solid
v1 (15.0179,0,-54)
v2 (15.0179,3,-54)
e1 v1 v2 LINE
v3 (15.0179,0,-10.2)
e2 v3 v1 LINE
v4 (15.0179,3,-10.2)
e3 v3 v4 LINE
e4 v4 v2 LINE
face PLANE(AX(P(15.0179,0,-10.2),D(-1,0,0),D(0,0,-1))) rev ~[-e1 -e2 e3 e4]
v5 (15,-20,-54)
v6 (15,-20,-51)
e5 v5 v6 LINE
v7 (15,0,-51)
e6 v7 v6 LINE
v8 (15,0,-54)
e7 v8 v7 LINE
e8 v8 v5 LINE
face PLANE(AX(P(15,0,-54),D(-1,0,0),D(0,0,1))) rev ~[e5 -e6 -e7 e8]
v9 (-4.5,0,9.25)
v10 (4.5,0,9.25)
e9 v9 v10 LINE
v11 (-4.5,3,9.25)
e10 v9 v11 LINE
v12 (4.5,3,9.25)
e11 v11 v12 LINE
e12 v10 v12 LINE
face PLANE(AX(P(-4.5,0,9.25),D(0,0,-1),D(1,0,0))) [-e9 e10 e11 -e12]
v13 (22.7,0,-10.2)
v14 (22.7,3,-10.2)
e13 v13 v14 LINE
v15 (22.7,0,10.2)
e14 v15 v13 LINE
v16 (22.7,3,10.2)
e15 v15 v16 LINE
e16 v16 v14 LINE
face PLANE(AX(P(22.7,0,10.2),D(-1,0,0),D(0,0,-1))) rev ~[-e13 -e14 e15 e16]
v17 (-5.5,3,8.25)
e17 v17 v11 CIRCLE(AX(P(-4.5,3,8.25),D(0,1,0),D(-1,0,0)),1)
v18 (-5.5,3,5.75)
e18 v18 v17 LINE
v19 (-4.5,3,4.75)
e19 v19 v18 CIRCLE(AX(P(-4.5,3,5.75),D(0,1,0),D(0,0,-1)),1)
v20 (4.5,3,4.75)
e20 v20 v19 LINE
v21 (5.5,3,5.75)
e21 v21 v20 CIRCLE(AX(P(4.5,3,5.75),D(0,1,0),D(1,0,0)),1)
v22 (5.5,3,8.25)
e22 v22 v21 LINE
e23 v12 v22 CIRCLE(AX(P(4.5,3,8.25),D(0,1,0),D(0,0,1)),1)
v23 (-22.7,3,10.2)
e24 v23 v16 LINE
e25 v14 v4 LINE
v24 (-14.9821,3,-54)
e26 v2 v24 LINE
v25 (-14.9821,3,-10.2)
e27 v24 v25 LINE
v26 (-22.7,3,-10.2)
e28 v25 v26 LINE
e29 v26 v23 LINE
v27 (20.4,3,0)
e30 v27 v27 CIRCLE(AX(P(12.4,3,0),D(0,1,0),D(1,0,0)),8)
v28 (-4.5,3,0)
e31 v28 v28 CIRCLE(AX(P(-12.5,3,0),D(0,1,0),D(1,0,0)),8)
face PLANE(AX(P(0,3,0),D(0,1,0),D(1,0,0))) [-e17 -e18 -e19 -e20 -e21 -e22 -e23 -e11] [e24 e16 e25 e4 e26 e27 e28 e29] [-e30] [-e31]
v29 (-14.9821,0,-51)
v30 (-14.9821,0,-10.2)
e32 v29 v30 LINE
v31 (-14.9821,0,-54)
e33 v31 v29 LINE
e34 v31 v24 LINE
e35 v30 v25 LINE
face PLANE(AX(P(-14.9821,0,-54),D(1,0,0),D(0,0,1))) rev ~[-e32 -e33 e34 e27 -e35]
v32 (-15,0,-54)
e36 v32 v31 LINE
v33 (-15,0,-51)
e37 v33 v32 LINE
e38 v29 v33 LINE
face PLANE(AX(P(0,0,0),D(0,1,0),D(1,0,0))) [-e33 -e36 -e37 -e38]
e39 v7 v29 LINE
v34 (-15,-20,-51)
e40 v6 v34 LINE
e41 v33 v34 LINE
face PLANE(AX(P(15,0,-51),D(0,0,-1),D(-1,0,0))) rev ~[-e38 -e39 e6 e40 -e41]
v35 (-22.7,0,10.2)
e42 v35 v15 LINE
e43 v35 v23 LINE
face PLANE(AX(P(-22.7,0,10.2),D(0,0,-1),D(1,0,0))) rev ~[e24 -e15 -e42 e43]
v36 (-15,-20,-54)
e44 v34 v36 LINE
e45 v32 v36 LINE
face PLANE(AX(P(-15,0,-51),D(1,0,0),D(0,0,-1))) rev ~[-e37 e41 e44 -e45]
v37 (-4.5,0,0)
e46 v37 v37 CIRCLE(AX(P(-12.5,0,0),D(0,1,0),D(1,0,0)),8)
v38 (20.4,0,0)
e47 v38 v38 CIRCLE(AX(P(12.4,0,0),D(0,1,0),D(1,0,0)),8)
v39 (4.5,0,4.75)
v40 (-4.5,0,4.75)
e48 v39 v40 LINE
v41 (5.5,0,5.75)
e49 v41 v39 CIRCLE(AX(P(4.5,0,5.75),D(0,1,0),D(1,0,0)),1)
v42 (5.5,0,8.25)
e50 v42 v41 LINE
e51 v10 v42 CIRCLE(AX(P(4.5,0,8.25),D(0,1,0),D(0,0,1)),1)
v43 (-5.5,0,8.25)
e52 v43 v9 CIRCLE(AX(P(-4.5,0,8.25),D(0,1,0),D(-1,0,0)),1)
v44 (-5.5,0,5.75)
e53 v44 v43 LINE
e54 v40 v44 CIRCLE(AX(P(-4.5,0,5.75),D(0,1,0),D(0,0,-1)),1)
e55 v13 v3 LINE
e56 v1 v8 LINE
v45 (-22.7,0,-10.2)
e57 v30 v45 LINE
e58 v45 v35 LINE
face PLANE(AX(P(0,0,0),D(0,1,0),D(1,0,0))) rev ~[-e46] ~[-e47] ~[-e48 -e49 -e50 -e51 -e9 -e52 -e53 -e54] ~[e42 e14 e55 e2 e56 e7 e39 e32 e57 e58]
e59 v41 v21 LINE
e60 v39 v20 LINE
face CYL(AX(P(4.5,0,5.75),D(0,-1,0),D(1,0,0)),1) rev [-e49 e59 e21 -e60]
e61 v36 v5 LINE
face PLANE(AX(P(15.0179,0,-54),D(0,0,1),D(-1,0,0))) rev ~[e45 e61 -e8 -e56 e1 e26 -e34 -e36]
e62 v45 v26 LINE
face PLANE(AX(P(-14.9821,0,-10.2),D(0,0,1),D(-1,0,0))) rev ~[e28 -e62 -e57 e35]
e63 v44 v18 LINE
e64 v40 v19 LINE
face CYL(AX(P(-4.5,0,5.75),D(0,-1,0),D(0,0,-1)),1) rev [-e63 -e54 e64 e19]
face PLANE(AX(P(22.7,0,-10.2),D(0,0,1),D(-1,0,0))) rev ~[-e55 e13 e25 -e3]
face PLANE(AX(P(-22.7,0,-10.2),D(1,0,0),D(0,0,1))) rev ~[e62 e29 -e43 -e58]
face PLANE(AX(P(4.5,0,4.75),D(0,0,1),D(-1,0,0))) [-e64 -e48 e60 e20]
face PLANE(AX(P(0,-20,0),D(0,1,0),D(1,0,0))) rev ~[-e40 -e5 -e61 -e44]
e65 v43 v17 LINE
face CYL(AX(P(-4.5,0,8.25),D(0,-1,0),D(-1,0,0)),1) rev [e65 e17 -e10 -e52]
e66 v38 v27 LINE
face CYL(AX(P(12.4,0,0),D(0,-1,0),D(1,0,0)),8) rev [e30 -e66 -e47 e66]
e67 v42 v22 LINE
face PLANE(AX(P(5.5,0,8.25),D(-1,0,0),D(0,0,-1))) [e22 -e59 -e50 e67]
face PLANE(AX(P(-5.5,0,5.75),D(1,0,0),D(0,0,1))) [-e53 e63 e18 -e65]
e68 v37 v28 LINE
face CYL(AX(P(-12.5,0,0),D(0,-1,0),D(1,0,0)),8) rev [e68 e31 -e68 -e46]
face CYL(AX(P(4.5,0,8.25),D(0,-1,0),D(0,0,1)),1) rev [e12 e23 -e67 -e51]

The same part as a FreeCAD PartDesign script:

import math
import FreeCAD as App
import Part
import Sketcher
from FreeCAD import Vector


def add_polygon(sketch, points):
    """Adds a closed chain of lines whose ends are joined by coincident constraints."""
    first, n = sketch.GeometryCount, len(points)
    for a, b in zip(points, points[1:] + points[:1]):
        sketch.addGeometry(Part.LineSegment(App.Vector(*a, 0), App.Vector(*b, 0)), False)
    for i in range(n):
        sketch.addConstraint(Sketcher.Constraint("Coincident", first + i, 2, first + (i + 1) % n, 1))

doc = App.newDocument("Part")
body = doc.addObject("PartDesign::Body", "Body")

# Sketch on XZ plane
sketch1 = body.newObject("Sketcher::SketchObject", "Sketch")
sketch1.AttachmentSupport = (doc.getObject("XZ_Plane"), [""])
sketch1.MapMode = "FlatFace"
add_polygon(sketch1, [(-14.9821, -10.2), (-22.7, -10.2), (-22.7, 10.2), (22.7, 10.2), (22.7, -10.2), (15.0179, -10.2), (15.0179, -54), (-14.9821, -54)])  # lines 0-7
sketch1.addGeometry(Part.Circle(Vector(-12.5, 0, 0), Vector(0, 0, 1), 8), False)  # 8
sketch1.addGeometry(Part.LineSegment(Vector(-4.5, 4.75, 0), Vector(4.5, 4.75, 0)), False)  # 9
sketch1.addGeometry(Part.ArcOfCircle(Part.Circle(Vector(4.5, 5.75, 0), Vector(0, 0, 1), 1), math.radians(-90), math.radians(0)), False)  # 10
sketch1.addGeometry(Part.LineSegment(Vector(5.5, 5.75, 0), Vector(5.5, 8.25, 0)), False)  # 11
sketch1.addGeometry(Part.ArcOfCircle(Part.Circle(Vector(4.5, 8.25, 0), Vector(0, 0, 1), 1), math.radians(0), math.radians(90)), False)  # 12
sketch1.addGeometry(Part.LineSegment(Vector(4.5, 9.25, 0), Vector(-4.5, 9.25, 0)), False)  # 13
sketch1.addGeometry(Part.ArcOfCircle(Part.Circle(Vector(-4.5, 8.25, 0), Vector(0, 0, 1), 1), math.radians(90), math.radians(180)), False)  # 14
sketch1.addGeometry(Part.LineSegment(Vector(-5.5, 8.25, 0), Vector(-5.5, 5.75, 0)), False)  # 15
sketch1.addGeometry(Part.ArcOfCircle(Part.Circle(Vector(-4.5, 5.75, 0), Vector(0, 0, 1), 1), math.radians(180), math.radians(270)), False)  # 16
sketch1.addGeometry(Part.Circle(Vector(12.4, 0, 0), Vector(0, 0, 1), 8), False)  # 17
sketch1.addConstraint([
    Sketcher.Constraint("Tangent", 9, 2, 10, 1),
    Sketcher.Constraint("Tangent", 10, 2, 11, 1),
    Sketcher.Constraint("Tangent", 11, 2, 12, 1),
    Sketcher.Constraint("Tangent", 12, 2, 13, 1),
    Sketcher.Constraint("Tangent", 13, 2, 14, 1),
    Sketcher.Constraint("Tangent", 14, 2, 15, 1),
    Sketcher.Constraint("Tangent", 15, 2, 16, 1),
    Sketcher.Constraint("Tangent", 16, 2, 9, 1),
    Sketcher.Constraint("Horizontal", 0),
    Sketcher.Constraint("Vertical", 1),
    Sketcher.Constraint("Horizontal", 2),
    Sketcher.Constraint("Vertical", 3),
    Sketcher.Constraint("Horizontal", 4),
    Sketcher.Constraint("Vertical", 5),
    Sketcher.Constraint("Horizontal", 6),
    Sketcher.Constraint("Vertical", 7),
    Sketcher.Constraint("Horizontal", 9),
    Sketcher.Constraint("Vertical", 11),
    Sketcher.Constraint("Horizontal", 13),
    Sketcher.Constraint("Vertical", 15),
    Sketcher.Constraint("Equal", 10, 12),
    Sketcher.Constraint("Equal", 12, 14),
    Sketcher.Constraint("Equal", 14, 16),
    Sketcher.Constraint("Equal", 8, 17),
    Sketcher.Constraint("Symmetric", 0, 2, 2, 2, -1, 1),
    Sketcher.Constraint("PointOnObject", 8, 3, -1),
    Sketcher.Constraint("PointOnObject", 17, 3, -1),
    Sketcher.Constraint("Horizontal", 0, 2, 3, 2),
    Sketcher.Constraint("Diameter", 8, 16.0),
    Sketcher.Constraint("Radius", 10, 1.0),
    Sketcher.Constraint("DistanceX", 6, 2, 6, 1, 30.0),
    Sketcher.Constraint("DistanceX", 2, 1, 2, 2, 45.4),
    Sketcher.Constraint("DistanceY", 1, 1, 1, 2, 20.4),
    Sketcher.Constraint("DistanceY", 5, 2, 5, 1, 43.8),
    Sketcher.Constraint("DistanceX", -1, 1, 10, 3, 4.5),
    Sketcher.Constraint("DistanceX", 14, 3, -1, 1, 4.5),
    Sketcher.Constraint("DistanceY", 9, 2, 12, 2, 4.5),
    Sketcher.Constraint("DistanceX", 8, 3, 10, 3, 17.0),
    Sketcher.Constraint("DistanceX", -1, 1, 17, 3, 12.4),
    Sketcher.Constraint("DistanceX", 0, 2, 0, 1, 7.718),
    Sketcher.Constraint("DistanceY", -1, 1, 10, 3, 5.75),
])
pad1 = body.newObject("PartDesign::Pad", "Pad")
pad1.Profile = sketch1
pad1.Length = 3
pad1.Reversed = True

# Sketch on XZ plane
sketch2 = body.newObject("Sketcher::SketchObject", "Sketch001")
sketch2.AttachmentSupport = (doc.getObject("XZ_Plane"), [""])
sketch2.MapMode = "FlatFace"
add_polygon(sketch2, [(15, -54), (-15, -54), (-15, -51), (15, -51)])  # lines 0-3
sketch2.addConstraint([
    Sketcher.Constraint("Horizontal", 0),
    Sketcher.Constraint("Vertical", 1),
    Sketcher.Constraint("Horizontal", 2),
    Sketcher.Constraint("Vertical", 3),
    Sketcher.Constraint("DistanceX", 0, 2, 0, 1, 30.0),
    Sketcher.Constraint("DistanceY", 1, 1, 1, 2, 3.0),
    Sketcher.Constraint("DistanceX", 0, 2, -1, 1, 15.0),
    Sketcher.Constraint("DistanceY", 0, 2, -1, 1, 54.0),
])
pad2 = body.newObject("PartDesign::Pad", "Pad001")
pad2.Profile = sketch2
pad2.Length = 20

doc.recompute()
